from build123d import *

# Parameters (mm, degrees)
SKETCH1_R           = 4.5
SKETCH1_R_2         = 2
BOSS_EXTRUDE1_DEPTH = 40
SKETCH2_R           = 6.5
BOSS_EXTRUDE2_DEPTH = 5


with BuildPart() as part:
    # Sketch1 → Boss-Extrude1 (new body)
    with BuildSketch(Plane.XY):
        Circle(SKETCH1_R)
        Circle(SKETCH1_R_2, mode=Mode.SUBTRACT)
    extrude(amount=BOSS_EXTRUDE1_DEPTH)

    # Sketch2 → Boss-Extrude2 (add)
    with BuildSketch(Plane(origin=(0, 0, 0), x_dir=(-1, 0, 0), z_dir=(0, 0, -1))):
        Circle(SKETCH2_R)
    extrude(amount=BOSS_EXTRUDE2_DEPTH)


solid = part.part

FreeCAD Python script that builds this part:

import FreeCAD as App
import Part
import Sketcher

doc = App.newDocument("Part")
body = doc.addObject("PartDesign::Body", "Body")

# Sketch on XY plane
sketch1 = body.newObject("Sketcher::SketchObject", "Sketch")
sketch1.AttachmentSupport = (doc.getObject("XY_Plane"), [""])
sketch1.MapMode = "FlatFace"
sketch1.addGeometry([
    Part.Circle(App.Vector(0, 0, 0), App.Vector(0, 0, 1), 4.5),
    Part.Circle(App.Vector(0, 0, 0), App.Vector(0, 0, 1), 2),
], False)
sketch1.addConstraint([
    Sketcher.Constraint("Coincident", 0, 3, -1, 1),
    Sketcher.Constraint("Coincident", 1, 3, -1, 1),
    Sketcher.Constraint("Diameter", 0, 9.0),
    Sketcher.Constraint("Diameter", 1, 4.0),
])
pad1 = body.newObject("PartDesign::Pad", "Pad")
pad1.Profile = sketch1
pad1.Length = 40

# Sketch on XY plane
sketch2 = body.newObject("Sketcher::SketchObject", "Sketch001")
sketch2.AttachmentSupport = (doc.getObject("XY_Plane"), [""])
sketch2.MapMode = "FlatFace"
sketch2.addGeometry(Part.Circle(App.Vector(0, 0, 0), App.Vector(0, 0, 1), 6.5), False)
sketch2.addConstraint([
    Sketcher.Constraint("Coincident", 0, 3, -1, 1),
    Sketcher.Constraint("Diameter", 0, 13.0),
])
pad2 = body.newObject("PartDesign::Pad", "Pad001")
pad2.Profile = sketch2
pad2.Length = 5
pad2.Reversed = True

doc.recompute()
